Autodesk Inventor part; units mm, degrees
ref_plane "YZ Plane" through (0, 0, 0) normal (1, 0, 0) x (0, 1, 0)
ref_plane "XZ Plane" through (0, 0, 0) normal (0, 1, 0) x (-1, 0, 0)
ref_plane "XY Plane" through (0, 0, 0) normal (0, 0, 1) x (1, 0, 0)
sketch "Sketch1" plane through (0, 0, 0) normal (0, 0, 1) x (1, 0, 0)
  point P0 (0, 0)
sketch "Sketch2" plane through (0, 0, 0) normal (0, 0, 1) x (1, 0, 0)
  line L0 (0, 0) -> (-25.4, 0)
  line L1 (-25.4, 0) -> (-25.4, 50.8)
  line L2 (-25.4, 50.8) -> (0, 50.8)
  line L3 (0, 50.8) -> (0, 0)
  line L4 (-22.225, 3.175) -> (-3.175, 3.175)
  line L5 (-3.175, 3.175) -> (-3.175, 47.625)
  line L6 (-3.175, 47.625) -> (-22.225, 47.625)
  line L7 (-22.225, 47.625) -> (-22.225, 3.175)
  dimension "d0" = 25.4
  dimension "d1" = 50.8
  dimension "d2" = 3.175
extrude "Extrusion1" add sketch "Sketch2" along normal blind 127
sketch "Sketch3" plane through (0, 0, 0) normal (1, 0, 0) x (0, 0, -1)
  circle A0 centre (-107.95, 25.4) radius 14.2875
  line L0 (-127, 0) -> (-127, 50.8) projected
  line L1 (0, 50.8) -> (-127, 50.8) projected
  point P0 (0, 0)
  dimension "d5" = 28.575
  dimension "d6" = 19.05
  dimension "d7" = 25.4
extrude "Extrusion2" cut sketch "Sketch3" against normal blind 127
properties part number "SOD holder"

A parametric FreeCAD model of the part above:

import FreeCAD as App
import Part
import Sketcher
from FreeCAD import Vector
Q = App.Units.Quantity


def add_polygon(sketch, points):
    """Adds a closed chain of lines whose ends are joined by coincident constraints."""
    first, n = sketch.GeometryCount, len(points)
    for a, b in zip(points, points[1:] + points[:1]):
        sketch.addGeometry(Part.LineSegment(App.Vector(*a, 0), App.Vector(*b, 0)), False)
    for i in range(n):
        sketch.addConstraint(Sketcher.Constraint("Coincident", first + i, 2, first + (i + 1) % n, 1))

doc = App.newDocument("Part")
body = doc.addObject("PartDesign::Body", "Body")

# Sketch on XY plane
sketch1 = body.newObject("Sketcher::SketchObject", "Sketch")
sketch1.AttachmentSupport = (doc.getObject("XY_Plane"), [""])
sketch1.MapMode = "FlatFace"
add_polygon(sketch1, [(-25, 0), (0, 0), (0, 51), (-25, 51)])  # lines 0-3
add_polygon(sketch1, [(-3, 3), (-22, 3), (-22, 48), (-3, 48)])  # lines 4-7
sketch1.addConstraint([
    Sketcher.Constraint("Horizontal", 0),
    Sketcher.Constraint("Vertical", 1),
    Sketcher.Constraint("Horizontal", 2),
    Sketcher.Constraint("Vertical", 3),
    Sketcher.Constraint("Horizontal", 4),
    Sketcher.Constraint("Vertical", 5),
    Sketcher.Constraint("Horizontal", 6),
    Sketcher.Constraint("Vertical", 7),
    Sketcher.Constraint("Coincident", 0, 2, -1, 1),
    Sketcher.Constraint("DistanceX", 0, 1, 0, 2, Q("1 in")),
    Sketcher.Constraint("DistanceY", 1, 1, 1, 2, Q("2 in")),
    Sketcher.Constraint("DistanceY", -1, 1, 4, 2, Q("0.125 in")),
    Sketcher.Constraint("DistanceX", 6, 2, -1, 1, Q("0.125 in")),
    Sketcher.Constraint("DistanceX", 3, 2, 4, 2, Q("0.125 in")),
    Sketcher.Constraint("DistanceY", 5, 2, 2, 2, Q("0.125 in")),
])
pad1 = body.newObject("PartDesign::Pad", "Pad")
pad1.Profile = sketch1
pad1.Length = Q("5 in")

# Sketch on YZ plane
sketch2 = body.newObject("Sketcher::SketchObject", "Sketch001")
sketch2.AttachmentSupport = (doc.getObject("YZ_Plane"), [""])
sketch2.MapMode = "FlatFace"
sketch2.addGeometry(Part.Circle(Vector(25, 108, 0), Vector(0, 0, 1), 14), False)
sketch2.addConstraint([
    Sketcher.Constraint("Diameter", 0, Q("1.125 in")),
    Sketcher.Constraint("DistanceX", -1, 1, 0, 3, Q("1 in")),
    Sketcher.Constraint("DistanceY", -1, 1, 0, 3, Q("4.25 in")),
])
pocket1 = body.newObject("PartDesign::Pocket", "Pocket")
pocket1.Profile = sketch2
pocket1.Length = Q("5 in")

doc.recompute()
